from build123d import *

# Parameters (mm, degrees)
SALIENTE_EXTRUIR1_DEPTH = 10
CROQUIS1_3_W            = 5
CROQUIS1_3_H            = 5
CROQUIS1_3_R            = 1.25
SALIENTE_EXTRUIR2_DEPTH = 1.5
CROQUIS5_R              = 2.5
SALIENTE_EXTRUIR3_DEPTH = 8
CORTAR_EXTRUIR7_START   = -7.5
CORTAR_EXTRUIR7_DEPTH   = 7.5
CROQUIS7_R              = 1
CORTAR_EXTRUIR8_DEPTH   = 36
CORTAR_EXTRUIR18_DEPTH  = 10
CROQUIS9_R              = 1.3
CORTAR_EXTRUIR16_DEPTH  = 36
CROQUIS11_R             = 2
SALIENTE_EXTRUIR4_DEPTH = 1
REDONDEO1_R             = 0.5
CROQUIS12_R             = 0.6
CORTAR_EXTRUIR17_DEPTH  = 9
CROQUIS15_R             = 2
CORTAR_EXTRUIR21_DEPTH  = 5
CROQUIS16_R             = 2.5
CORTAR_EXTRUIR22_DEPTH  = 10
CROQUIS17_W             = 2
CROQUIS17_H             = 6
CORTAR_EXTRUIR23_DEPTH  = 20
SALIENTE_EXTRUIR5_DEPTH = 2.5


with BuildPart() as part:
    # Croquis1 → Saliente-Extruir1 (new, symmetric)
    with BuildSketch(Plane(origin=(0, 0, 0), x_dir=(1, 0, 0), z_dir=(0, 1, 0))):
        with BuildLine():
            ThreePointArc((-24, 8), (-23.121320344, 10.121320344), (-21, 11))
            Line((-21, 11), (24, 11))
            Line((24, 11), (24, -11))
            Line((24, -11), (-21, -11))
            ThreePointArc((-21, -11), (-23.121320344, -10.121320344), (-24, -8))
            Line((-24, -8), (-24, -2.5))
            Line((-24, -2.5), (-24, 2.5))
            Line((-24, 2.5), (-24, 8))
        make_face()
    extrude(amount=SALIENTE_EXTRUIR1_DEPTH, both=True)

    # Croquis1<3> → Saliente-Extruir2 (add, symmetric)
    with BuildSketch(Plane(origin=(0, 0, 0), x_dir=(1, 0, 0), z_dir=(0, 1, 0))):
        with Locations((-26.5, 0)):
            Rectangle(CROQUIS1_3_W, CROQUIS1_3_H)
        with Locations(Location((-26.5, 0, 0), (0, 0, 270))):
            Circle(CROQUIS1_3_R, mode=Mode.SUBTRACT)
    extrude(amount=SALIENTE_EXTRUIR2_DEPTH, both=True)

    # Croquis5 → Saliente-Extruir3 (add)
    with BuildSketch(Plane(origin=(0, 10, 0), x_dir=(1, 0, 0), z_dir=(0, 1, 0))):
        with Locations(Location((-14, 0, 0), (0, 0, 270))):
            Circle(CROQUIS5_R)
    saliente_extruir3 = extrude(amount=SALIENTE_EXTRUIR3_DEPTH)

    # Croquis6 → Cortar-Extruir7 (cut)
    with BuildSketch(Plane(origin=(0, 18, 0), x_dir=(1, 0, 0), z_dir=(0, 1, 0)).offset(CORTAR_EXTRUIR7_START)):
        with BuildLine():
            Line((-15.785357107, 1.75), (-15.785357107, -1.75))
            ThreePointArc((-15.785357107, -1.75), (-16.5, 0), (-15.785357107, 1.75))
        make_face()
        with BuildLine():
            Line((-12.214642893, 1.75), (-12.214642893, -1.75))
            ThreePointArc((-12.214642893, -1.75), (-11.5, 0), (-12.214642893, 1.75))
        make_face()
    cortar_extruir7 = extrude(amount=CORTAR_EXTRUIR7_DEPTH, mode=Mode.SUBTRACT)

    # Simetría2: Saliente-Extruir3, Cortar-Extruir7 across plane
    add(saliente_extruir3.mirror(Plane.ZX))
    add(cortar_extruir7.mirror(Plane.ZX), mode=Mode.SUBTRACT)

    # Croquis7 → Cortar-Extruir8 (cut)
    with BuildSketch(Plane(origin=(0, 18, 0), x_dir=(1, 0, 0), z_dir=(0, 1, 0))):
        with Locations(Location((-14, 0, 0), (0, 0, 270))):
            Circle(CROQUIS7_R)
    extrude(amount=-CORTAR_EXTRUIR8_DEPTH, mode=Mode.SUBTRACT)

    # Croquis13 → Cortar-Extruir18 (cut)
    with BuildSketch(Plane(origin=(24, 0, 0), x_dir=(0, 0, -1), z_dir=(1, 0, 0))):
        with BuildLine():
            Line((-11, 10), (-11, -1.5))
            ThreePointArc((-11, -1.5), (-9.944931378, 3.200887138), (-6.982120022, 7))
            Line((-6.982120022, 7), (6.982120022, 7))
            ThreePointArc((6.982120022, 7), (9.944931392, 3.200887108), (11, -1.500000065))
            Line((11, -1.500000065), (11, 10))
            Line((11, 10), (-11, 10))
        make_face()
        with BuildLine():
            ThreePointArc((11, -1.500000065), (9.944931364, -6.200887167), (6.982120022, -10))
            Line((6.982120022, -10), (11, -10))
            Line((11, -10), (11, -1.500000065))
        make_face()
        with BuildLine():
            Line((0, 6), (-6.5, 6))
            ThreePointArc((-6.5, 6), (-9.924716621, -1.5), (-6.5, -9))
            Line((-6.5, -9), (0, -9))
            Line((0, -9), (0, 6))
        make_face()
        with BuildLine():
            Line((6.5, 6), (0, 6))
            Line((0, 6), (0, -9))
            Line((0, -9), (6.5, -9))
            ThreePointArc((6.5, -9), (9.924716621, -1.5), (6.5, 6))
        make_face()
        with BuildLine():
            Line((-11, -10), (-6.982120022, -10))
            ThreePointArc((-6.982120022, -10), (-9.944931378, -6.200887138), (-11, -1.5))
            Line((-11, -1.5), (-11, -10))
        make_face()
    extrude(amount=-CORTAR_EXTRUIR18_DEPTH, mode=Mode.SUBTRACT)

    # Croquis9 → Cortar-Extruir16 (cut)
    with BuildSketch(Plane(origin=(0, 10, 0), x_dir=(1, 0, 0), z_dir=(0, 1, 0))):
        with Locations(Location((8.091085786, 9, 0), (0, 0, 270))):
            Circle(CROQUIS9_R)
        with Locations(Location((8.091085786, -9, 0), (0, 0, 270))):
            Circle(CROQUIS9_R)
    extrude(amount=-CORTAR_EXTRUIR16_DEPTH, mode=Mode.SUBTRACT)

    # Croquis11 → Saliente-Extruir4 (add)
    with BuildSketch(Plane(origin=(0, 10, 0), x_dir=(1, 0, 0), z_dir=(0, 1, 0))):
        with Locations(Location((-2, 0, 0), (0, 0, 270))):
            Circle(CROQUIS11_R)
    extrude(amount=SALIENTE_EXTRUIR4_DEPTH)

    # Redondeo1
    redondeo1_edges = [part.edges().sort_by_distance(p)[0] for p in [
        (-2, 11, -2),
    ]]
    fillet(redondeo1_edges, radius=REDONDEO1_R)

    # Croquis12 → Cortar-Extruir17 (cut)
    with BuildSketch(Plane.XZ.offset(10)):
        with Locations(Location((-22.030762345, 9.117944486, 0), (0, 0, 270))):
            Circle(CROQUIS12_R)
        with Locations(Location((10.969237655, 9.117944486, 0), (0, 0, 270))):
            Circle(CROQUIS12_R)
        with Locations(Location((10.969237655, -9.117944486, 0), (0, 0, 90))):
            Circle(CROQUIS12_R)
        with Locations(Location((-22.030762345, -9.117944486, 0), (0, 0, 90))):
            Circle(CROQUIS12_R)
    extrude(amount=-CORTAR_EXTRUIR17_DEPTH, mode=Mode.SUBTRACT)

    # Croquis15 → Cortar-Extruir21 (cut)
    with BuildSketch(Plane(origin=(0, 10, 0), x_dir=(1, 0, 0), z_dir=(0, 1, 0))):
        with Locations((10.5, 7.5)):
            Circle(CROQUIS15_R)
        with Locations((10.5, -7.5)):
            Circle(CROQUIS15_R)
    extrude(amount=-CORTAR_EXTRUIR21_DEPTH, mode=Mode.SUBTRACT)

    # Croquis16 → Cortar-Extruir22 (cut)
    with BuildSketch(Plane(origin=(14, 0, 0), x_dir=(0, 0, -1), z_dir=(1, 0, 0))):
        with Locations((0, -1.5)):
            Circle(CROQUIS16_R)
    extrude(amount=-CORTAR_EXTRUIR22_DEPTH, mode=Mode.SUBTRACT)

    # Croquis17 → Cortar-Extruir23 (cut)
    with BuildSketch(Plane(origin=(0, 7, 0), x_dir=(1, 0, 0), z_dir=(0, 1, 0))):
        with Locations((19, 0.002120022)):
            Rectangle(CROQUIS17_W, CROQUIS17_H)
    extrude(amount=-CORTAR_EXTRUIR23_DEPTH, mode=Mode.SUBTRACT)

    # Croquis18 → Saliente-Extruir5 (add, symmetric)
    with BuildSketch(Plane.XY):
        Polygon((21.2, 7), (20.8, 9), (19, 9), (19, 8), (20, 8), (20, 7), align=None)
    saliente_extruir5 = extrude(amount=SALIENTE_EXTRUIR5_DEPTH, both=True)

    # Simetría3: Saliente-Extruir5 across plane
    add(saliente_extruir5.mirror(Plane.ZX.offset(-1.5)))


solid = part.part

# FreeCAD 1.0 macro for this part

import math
import FreeCAD as App
import Part
import Sketcher
Q = App.Units.Quantity


def edges_at(feature, points):
    """Names of the edges that pass closest to the given points."""
    edges = feature.Shape.Edges
    near = lambda p: min(range(len(edges)), key=lambda i: edges[i].distToShape(Part.Vertex(*p))[0])
    return sorted({f"Edge{near(p) + 1}" for p in points})


def add_polygon(sketch, points):
    """Adds a closed chain of lines whose ends are joined by coincident constraints."""
    first, n = sketch.GeometryCount, len(points)
    for a, b in zip(points, points[1:] + points[:1]):
        sketch.addGeometry(Part.LineSegment(App.Vector(*a, 0), App.Vector(*b, 0)), False)
    for i in range(n):
        sketch.addConstraint(Sketcher.Constraint("Coincident", first + i, 2, first + (i + 1) % n, 1))

doc = App.newDocument("Part")
params = doc.addObject("Spreadsheet::Sheet", "Params")
for row, (alias, value) in enumerate([
    ("sketch1_radius", "3 mm"),
    ("sketch1_width", "45 mm"),
    ("sketch1_height", "16 mm"),
    ("pad1_length", "20 mm"),
    ("sketch2_diameter", "2.5 mm"),
    ("sketch2_width", "5 mm"),
    ("pad2_length", "3 mm"),
    ("sketch3_diameter", "5 mm"),
    ("pad3_length", "8 mm"),
    ("sketch4_radius", "2.5 mm"),
    ("sketch4_height", "3.5 mm"),
    ("pocket1_length", "7.5 mm"),
    ("sketch5_diameter", "2 mm"),
    ("pocket2_length", "36 mm"),
    ("sketch6_radius", "11 mm"),
    ("sketch6_height", "13 mm"),
    ("sketch6_width", "11.5 mm"),
    ("sketch6_width2", "8.5 mm"),
    ("pocket3_length", "10 mm"),
    ("sketch7_diameter", "2.6 mm"),
    ("pocket4_length", "36 mm"),
    ("sketch8_diameter", "4 mm"),
    ("pad4_length", "1 mm"),
    ("fillet_radius", "0.5 mm"),
    ("sketch9_diameter", "1.2 mm"),
    ("pocket5_length", "9 mm"),
    ("sketch10_diameter", "4 mm"),
    ("pocket6_length", "5 mm"),
    ("sketch11_diameter", "5 mm"),
    ("pocket7_length", "10 mm"),
    ("sketch12_width", "2 mm"),
    ("sketch12_height", "6 mm"),
    ("pocket8_length", "20 mm"),
    ("sketch13_width", "1 mm"),
    ("sketch13_width2", "1.8 mm"),
    ("sketch13_width3", "1.2 mm"),
    ("pad5_length", "5 mm"),
], start=1):
    params.set(f"A{row}", alias)
    params.set(f"B{row}", "=" + value)
    params.setAlias(f"B{row}", alias)

body = doc.addObject("PartDesign::Body", "Body")

# Sketch on XZ plane
sketch1 = doc.addObject("Sketcher::SketchObject", "Sketch")
body.addObject(sketch1)
sketch1.AttachmentSupport = (doc.XZ_Plane, [""])
sketch1.MapMode = "FlatFace"
sketch1.addGeometry(Part.ArcOfCircle(Part.Circle(App.Vector(-21, -8, 0), App.Vector(0, 0, 1), 3), math.radians(180), math.radians(270)), False)
sketch1.addGeometry(Part.LineSegment(App.Vector(-24, -8, 0), App.Vector(-24, 8, 0)), False)
sketch1.addGeometry(Part.ArcOfCircle(Part.Circle(App.Vector(-21, 8, 0), App.Vector(0, 0, 1), 3), math.radians(90), math.radians(180)), False)
sketch1.addGeometry(Part.LineSegment(App.Vector(-21, 11, 0), App.Vector(24, 11, 0)), False)
sketch1.addGeometry(Part.LineSegment(App.Vector(24, 11, 0), App.Vector(24, -11, 0)), False)
sketch1.addGeometry(Part.LineSegment(App.Vector(24, -11, 0), App.Vector(-21, -11, 0)), False)
sketch1.addConstraint(Sketcher.Constraint("Tangent", 0, 1, 1, 1))
sketch1.addConstraint(Sketcher.Constraint("Tangent", 1, 2, 2, 2))
sketch1.addConstraint(Sketcher.Constraint("Tangent", 2, 1, 3, 1))
sketch1.addConstraint(Sketcher.Constraint("Coincident", 3, 2, 4, 1))
sketch1.addConstraint(Sketcher.Constraint("Coincident", 4, 2, 5, 1))
sketch1.addConstraint(Sketcher.Constraint("Tangent", 5, 2, 0, 2))
sketch1.addConstraint(Sketcher.Constraint("Vertical", 1))
sketch1.addConstraint(Sketcher.Constraint("Horizontal", 3))
sketch1.addConstraint(Sketcher.Constraint("Vertical", 4))
sketch1.addConstraint(Sketcher.Constraint("Horizontal", 5))
sketch1.addConstraint(Sketcher.Constraint("Equal", 0, 2))
sketch1.addConstraint(Sketcher.Constraint("Radius", 0, Q("3 mm")))
sketch1.addConstraint(Sketcher.Constraint("DistanceX", 3, 1, 3, 2, Q("45 mm")))
sketch1.addConstraint(Sketcher.Constraint("DistanceY", 1, 1, 1, 2, Q("16 mm")))
sketch1.addConstraint(Sketcher.Constraint("DistanceX", 0, 3, -1, 1, Q("21 mm")))
sketch1.addConstraint(Sketcher.Constraint("DistanceY", 0, 3, -1, 1, Q("8 mm")))
sketch1.setExpression("Constraints[11]", "Params.sketch1_radius")
sketch1.setExpression("Constraints[12]", "Params.sketch1_width")
sketch1.setExpression("Constraints[13]", "Params.sketch1_height")
pad1 = doc.addObject("PartDesign::Pad", "Pad")
body.addObject(pad1)
pad1.Profile = sketch1
pad1.setExpression("Length", "Params.pad1_length")
pad1.Midplane = True

# Sketch on XZ plane
sketch2 = doc.addObject("Sketcher::SketchObject", "Sketch001")
body.addObject(sketch2)
sketch2.AttachmentSupport = (doc.XZ_Plane, [""])
sketch2.MapMode = "FlatFace"
add_polygon(sketch2, [(-29, -2.5), (-29, 2.5), (-24, 2.5), (-24, -2.5)])  # lines 0-3
sketch2.addGeometry(Part.Circle(App.Vector(-26.5, 0, 0), App.Vector(0, 0, 1), 1.25), False)  # 4
sketch2.addConstraint(Sketcher.Constraint("Vertical", 0))
sketch2.addConstraint(Sketcher.Constraint("Horizontal", 1))
sketch2.addConstraint(Sketcher.Constraint("Vertical", 2))
sketch2.addConstraint(Sketcher.Constraint("Horizontal", 3))
sketch2.addConstraint(Sketcher.Constraint("PointOnObject", 4, 3, -1))
sketch2.addConstraint(Sketcher.Constraint("Equal", 3, 0))
sketch2.addConstraint(Sketcher.Constraint("Diameter", 4, Q("2.5 mm")))
sketch2.addConstraint(Sketcher.Constraint("DistanceX", 1, 1, 1, 2, Q("5 mm")))
sketch2.addConstraint(Sketcher.Constraint("DistanceX", 0, 2, -1, 1, Q("29 mm")))
sketch2.addConstraint(Sketcher.Constraint("DistanceX", 4, 3, -1, 1, Q("26.5 mm")))
sketch2.addConstraint(Sketcher.Constraint("DistanceY", -1, 1, 0, 2, Q("2.5 mm")))
sketch2.setExpression("Constraints[10]", "Params.sketch2_diameter")
sketch2.setExpression("Constraints[11]", "Params.sketch2_width")
pad2 = doc.addObject("PartDesign::Pad", "Pad001")
body.addObject(pad2)
pad2.Profile = sketch2
pad2.setExpression("Length", "Params.pad2_length")
pad2.Midplane = True

# Sketch on XZ plane
sketch3 = doc.addObject("Sketcher::SketchObject", "Sketch002")
body.addObject(sketch3)
sketch3.AttachmentSupport = (doc.XZ_Plane, [""])
sketch3.MapMode = "FlatFace"
sketch3.AttachmentOffset = App.Placement(App.Vector(0, 0, -10), App.Rotation())
sketch3.addGeometry(Part.Circle(App.Vector(-14, 0, 0), App.Vector(0, 0, 1), 2.5), False)
sketch3.addConstraint(Sketcher.Constraint("PointOnObject", 0, 3, -1))
sketch3.addConstraint(Sketcher.Constraint("Diameter", 0, Q("5 mm")))
sketch3.addConstraint(Sketcher.Constraint("DistanceX", 0, 3, -1, 1, Q("14 mm")))
sketch3.setExpression("Constraints[1]", "Params.sketch3_diameter")
pad3 = doc.addObject("PartDesign::Pad", "Pad002")
body.addObject(pad3)
pad3.Profile = sketch3
pad3.setExpression("Length", "Params.pad3_length")
pad3.Reversed = True

# Sketch on XZ plane
sketch4 = doc.addObject("Sketcher::SketchObject", "Sketch003")
body.addObject(sketch4)
sketch4.AttachmentSupport = (doc.XZ_Plane, [""])
sketch4.MapMode = "FlatFace"
sketch4.AttachmentOffset = App.Placement(App.Vector(0, 0, -10.5), App.Rotation())
sketch4.addGeometry(Part.LineSegment(App.Vector(-15.785357, 1.75, 0), App.Vector(-15.785357, -1.75, 0)), False)
sketch4.addGeometry(Part.ArcOfCircle(Part.Circle(App.Vector(-14, 0, 0), App.Vector(0, 0, 1), 2.5), math.radians(135.572996), math.radians(224.427004)), False)
sketch4.addGeometry(Part.LineSegment(App.Vector(-12.214643, -1.75, 0), App.Vector(-12.214643, 1.75, 0)), False)
sketch4.addGeometry(Part.ArcOfCircle(Part.Circle(App.Vector(-14, 0, 0), App.Vector(0, 0, 1), 2.5), math.radians(-44.427004), math.radians(44.427004)), False)
sketch4.addConstraint(Sketcher.Constraint("Coincident", 0, 1, 1, 1))
sketch4.addConstraint(Sketcher.Constraint("Coincident", 1, 2, 0, 2))
sketch4.addConstraint(Sketcher.Constraint("Coincident", 2, 1, 3, 1))
sketch4.addConstraint(Sketcher.Constraint("Coincident", 3, 2, 2, 2))
sketch4.addConstraint(Sketcher.Constraint("Vertical", 0))
sketch4.addConstraint(Sketcher.Constraint("Vertical", 2))
sketch4.addConstraint(Sketcher.Constraint("Coincident", 3, 3, 1, 3))
sketch4.addConstraint(Sketcher.Constraint("Equal", 1, 3))
sketch4.addConstraint(Sketcher.Constraint("PointOnObject", 1, 3, -1))
sketch4.addConstraint(Sketcher.Constraint("Horizontal", 1, 2, 2, 1))
sketch4.addConstraint(Sketcher.Constraint("Radius", 1, Q("2.5 mm")))
sketch4.addConstraint(Sketcher.Constraint("DistanceY", 0, 2, 0, 1, Q("3.5 mm")))
sketch4.addConstraint(Sketcher.Constraint("DistanceX", 1, 3, -1, 1, Q("14 mm")))
sketch4.setExpression("Constraints[10]", "Params.sketch4_radius")
sketch4.setExpression("Constraints[11]", "Params.sketch4_height")
pocket1 = doc.addObject("PartDesign::Pocket", "Pocket")
body.addObject(pocket1)
pocket1.Profile = sketch4
pocket1.setExpression("Length", "Params.pocket1_length")
doc.recompute()

mirrored = doc.addObject("PartDesign::Mirrored", "Mirrored")
body.addObject(mirrored)
mirrored.Originals = [pad3, pocket1]
mirrored.MirrorPlane = (doc.XZ_Plane, [""])
body.Tip = mirrored

# Sketch on XZ plane
sketch5 = doc.addObject("Sketcher::SketchObject", "Sketch004")
body.addObject(sketch5)
sketch5.AttachmentSupport = (doc.XZ_Plane, [""])
sketch5.MapMode = "FlatFace"
sketch5.AttachmentOffset = App.Placement(App.Vector(0, 0, -18), App.Rotation())
sketch5.addGeometry(Part.Circle(App.Vector(-14, 0, 0), App.Vector(0, 0, 1), 1), False)
sketch5.addConstraint(Sketcher.Constraint("PointOnObject", 0, 3, -1))
sketch5.addConstraint(Sketcher.Constraint("Diameter", 0, Q("2 mm")))
sketch5.addConstraint(Sketcher.Constraint("DistanceX", 0, 3, -1, 1, Q("14 mm")))
sketch5.setExpression("Constraints[1]", "Params.sketch5_diameter")
pocket2 = doc.addObject("PartDesign::Pocket", "Pocket001")
body.addObject(pocket2)
pocket2.Profile = sketch5
pocket2.setExpression("Length", "Params.pocket2_length")
pocket2.Reversed = True

# Sketch on YZ plane
sketch6 = doc.addObject("Sketcher::SketchObject", "Sketch005")
body.addObject(sketch6)
sketch6.AttachmentSupport = (doc.YZ_Plane, [""])
sketch6.MapMode = "FlatFace"
sketch6.AttachmentOffset = App.Placement(App.Vector(0, 0, 24), App.Rotation())
sketch6.addGeometry(Part.LineSegment(App.Vector(10, 11, 0), App.Vector(-1.5, 11, 0)), False)
sketch6.addGeometry(Part.ArcOfCircle(Part.Circle(App.Vector(-1.5, 0, 0), App.Vector(0, 0, 1), 11), math.radians(39.400569), math.radians(90)), False)
sketch6.addGeometry(Part.LineSegment(App.Vector(7, 6.98212, 0), App.Vector(7, -6.98212, 0)), False)
sketch6.addGeometry(Part.ArcOfCircle(Part.Circle(App.Vector(-1.5, 0, 0), App.Vector(0, 0, 1), 11), math.radians(-90), math.radians(-39.400569)), False)
sketch6.addGeometry(Part.LineSegment(App.Vector(-1.5, -11, 0), App.Vector(10, -11, 0)), False)
sketch6.addGeometry(Part.LineSegment(App.Vector(10, -11, 0), App.Vector(10, 11, 0)), False)
sketch6.addGeometry(Part.ArcOfCircle(Part.Circle(App.Vector(-1.5, 0, 0), App.Vector(0, 0, 1), 11), math.radians(-140.599431), math.radians(-90)), False)
sketch6.addGeometry(Part.LineSegment(App.Vector(-10, -6.98212, 0), App.Vector(-10, -11, 0)), False)
sketch6.addGeometry(Part.LineSegment(App.Vector(-10, -11, 0), App.Vector(-1.5, -11, 0)), False)
sketch6.addGeometry(Part.ArcOfCircle(Part.Circle(App.Vector(-1.5, 0, 0), App.Vector(0, 0, 1), 9.924717), math.radians(40.914383), math.radians(139.085617)), False)
sketch6.addGeometry(Part.LineSegment(App.Vector(-9, 6.5, 0), App.Vector(-9, -6.5, 0)), False)
sketch6.addGeometry(Part.ArcOfCircle(Part.Circle(App.Vector(-1.5, 0, 0), App.Vector(0, 0, 1), 9.924717), math.radians(-139.085617), math.radians(-40.914383)), False)
sketch6.addGeometry(Part.LineSegment(App.Vector(6, -6.5, 0), App.Vector(6, 6.5, 0)), False)
sketch6.addGeometry(Part.LineSegment(App.Vector(-10, 11, 0), App.Vector(-10, 6.98212, 0)), False)
sketch6.addGeometry(Part.ArcOfCircle(Part.Circle(App.Vector(-1.5, 0, 0), App.Vector(0, 0, 1), 11), math.radians(90), math.radians(140.599431)), False)
sketch6.addGeometry(Part.LineSegment(App.Vector(-1.5, 11, 0), App.Vector(-10, 11, 0)), False)
sketch6.addConstraint(Sketcher.Constraint("Tangent", 0, 2, 1, 2))
sketch6.addConstraint(Sketcher.Constraint("Coincident", 1, 1, 2, 1))
sketch6.addConstraint(Sketcher.Constraint("Coincident", 2, 2, 3, 2))
sketch6.addConstraint(Sketcher.Constraint("Tangent", 3, 1, 4, 1))
sketch6.addConstraint(Sketcher.Constraint("Coincident", 4, 2, 5, 1))
sketch6.addConstraint(Sketcher.Constraint("Coincident", 5, 2, 0, 1))
sketch6.addConstraint(Sketcher.Constraint("Coincident", 6, 1, 7, 1))
sketch6.addConstraint(Sketcher.Constraint("Coincident", 7, 2, 8, 1))
sketch6.addConstraint(Sketcher.Constraint("Tangent", 8, 2, 6, 2))
sketch6.addConstraint(Sketcher.Constraint("Coincident", 9, 2, 10, 1))
sketch6.addConstraint(Sketcher.Constraint("Coincident", 10, 2, 11, 1))
sketch6.addConstraint(Sketcher.Constraint("Coincident", 11, 2, 12, 1))
sketch6.addConstraint(Sketcher.Constraint("Coincident", 12, 2, 9, 1))
sketch6.addConstraint(Sketcher.Constraint("Coincident", 13, 2, 14, 2))
sketch6.addConstraint(Sketcher.Constraint("Tangent", 14, 1, 15, 1))
sketch6.addConstraint(Sketcher.Constraint("Coincident", 15, 2, 13, 1))
sketch6.addConstraint(Sketcher.Constraint("Horizontal", 0))
sketch6.addConstraint(Sketcher.Constraint("Vertical", 2))
sketch6.addConstraint(Sketcher.Constraint("Horizontal", 4))
sketch6.addConstraint(Sketcher.Constraint("Vertical", 5))
sketch6.addConstraint(Sketcher.Constraint("Vertical", 7))
sketch6.addConstraint(Sketcher.Constraint("Horizontal", 8))
sketch6.addConstraint(Sketcher.Constraint("Vertical", 10))
sketch6.addConstraint(Sketcher.Constraint("Vertical", 12))
sketch6.addConstraint(Sketcher.Constraint("Vertical", 13))
sketch6.addConstraint(Sketcher.Constraint("Horizontal", 15))
sketch6.addConstraint(Sketcher.Constraint("Coincident", 3, 3, 1, 3))
sketch6.addConstraint(Sketcher.Constraint("Coincident", 6, 3, 1, 3))
sketch6.addConstraint(Sketcher.Constraint("Coincident", 9, 3, 1, 3))
sketch6.addConstraint(Sketcher.Constraint("Coincident", 11, 3, 1, 3))
sketch6.addConstraint(Sketcher.Constraint("Coincident", 14, 3, 1, 3))
sketch6.addConstraint(Sketcher.Constraint("Equal", 1, 3))
sketch6.addConstraint(Sketcher.Constraint("Equal", 3, 6))
sketch6.addConstraint(Sketcher.Constraint("Equal", 9, 11))
sketch6.addConstraint(Sketcher.Constraint("Equal", 6, 14))
sketch6.addConstraint(Sketcher.Constraint("Symmetric", 5, 2, 7, 2, -1, 1))
sketch6.addConstraint(Sketcher.Constraint("Horizontal", 2, 2, 6, 1))
sketch6.addConstraint(Sketcher.Constraint("Horizontal", 10, 2, 11, 2))
sketch6.addConstraint(Sketcher.Constraint("Horizontal", 1, 1, 13, 2))
sketch6.addConstraint(Sketcher.Constraint("Radius", 1, Q("11 mm")))
sketch6.addConstraint(Sketcher.Constraint("DistanceY", 10, 2, 10, 1, Q("13 mm")))
sketch6.addConstraint(Sketcher.Constraint("DistanceX", 0, 2, 0, 1, Q("11.5 mm")))
sketch6.addConstraint(Sketcher.Constraint("DistanceX", 8, 1, 8, 2, Q("8.5 mm")))
sketch6.addConstraint(Sketcher.Constraint("DistanceX", 9, 2, -1, 1, Q("9 mm")))
sketch6.setExpression("Constraints[39]", "Params.sketch6_radius")
sketch6.setExpression("Constraints[40]", "Params.sketch6_height")
sketch6.setExpression("Constraints[41]", "Params.sketch6_width")
sketch6.setExpression("Constraints[42]", "Params.sketch6_width2")
pocket3 = doc.addObject("PartDesign::Pocket", "Pocket002")
body.addObject(pocket3)
pocket3.Profile = sketch6
pocket3.setExpression("Length", "Params.pocket3_length")

# Sketch on XZ plane
sketch7 = doc.addObject("Sketcher::SketchObject", "Sketch006")
body.addObject(sketch7)
sketch7.AttachmentSupport = (doc.XZ_Plane, [""])
sketch7.MapMode = "FlatFace"
sketch7.AttachmentOffset = App.Placement(App.Vector(0, 0, -10), App.Rotation())
sketch7.addGeometry(Part.Circle(App.Vector(8.091086, -9, 0), App.Vector(0, 0, 1), 1.3), False)
sketch7.addGeometry(Part.Circle(App.Vector(8.091086, 9, 0), App.Vector(0, 0, 1), 1.3), False)
sketch7.addConstraint(Sketcher.Constraint("Equal", 0, 1))
sketch7.addConstraint(Sketcher.Constraint("Symmetric", 0, 3, 1, 3, -1))
sketch7.addConstraint(Sketcher.Constraint("Diameter", 0, Q("2.6 mm")))
sketch7.addConstraint(Sketcher.Constraint("DistanceY", 0, 3, -1, 1, Q("9 mm")))
sketch7.addConstraint(Sketcher.Constraint("DistanceX", -1, 1, 0, 3, Q("8.091086 mm")))
sketch7.setExpression("Constraints[2]", "Params.sketch7_diameter")
pocket4 = doc.addObject("PartDesign::Pocket", "Pocket003")
body.addObject(pocket4)
pocket4.Profile = sketch7
pocket4.setExpression("Length", "Params.pocket4_length")
pocket4.Reversed = True

# Sketch on XZ plane
sketch8 = doc.addObject("Sketcher::SketchObject", "Sketch007")
body.addObject(sketch8)
sketch8.AttachmentSupport = (doc.XZ_Plane, [""])
sketch8.MapMode = "FlatFace"
sketch8.AttachmentOffset = App.Placement(App.Vector(0, 0, -10), App.Rotation())
sketch8.addGeometry(Part.Circle(App.Vector(-2, 0, 0), App.Vector(0, 0, 1), 2), False)
sketch8.addConstraint(Sketcher.Constraint("PointOnObject", 0, 3, -1))
sketch8.addConstraint(Sketcher.Constraint("Diameter", 0, Q("4 mm")))
sketch8.addConstraint(Sketcher.Constraint("DistanceX", 0, 3, -1, 1, Q("2 mm")))
sketch8.setExpression("Constraints[1]", "Params.sketch8_diameter")
pad4 = doc.addObject("PartDesign::Pad", "Pad003")
body.addObject(pad4)
pad4.Profile = sketch8
pad4.setExpression("Length", "Params.pad4_length")
pad4.Reversed = True
doc.recompute()

fillet = doc.addObject("PartDesign::Fillet", "Fillet")
body.addObject(fillet)
fillet.Base = (pad4, edges_at(pad4, [(-2, 11, -2)]))
fillet.setExpression("Radius", "Params.fillet_radius")

# Sketch on XZ plane
sketch9 = doc.addObject("Sketcher::SketchObject", "Sketch008")
body.addObject(sketch9)
sketch9.AttachmentSupport = (doc.XZ_Plane, [""])
sketch9.MapMode = "FlatFace"
sketch9.AttachmentOffset = App.Placement(App.Vector(0, 0, 10), App.Rotation())
sketch9.addGeometry(Part.Circle(App.Vector(-22.030762, 9.117944, 0), App.Vector(0, 0, 1), 0.6), False)
sketch9.addGeometry(Part.Circle(App.Vector(10.969238, 9.117944, 0), App.Vector(0, 0, 1), 0.6), False)
sketch9.addGeometry(Part.Circle(App.Vector(10.969238, -9.117944, 0), App.Vector(0, 0, 1), 0.6), False)
sketch9.addGeometry(Part.Circle(App.Vector(-22.030762, -9.117944, 0), App.Vector(0, 0, 1), 0.6), False)
sketch9.addConstraint(Sketcher.Constraint("Equal", 0, 1))
sketch9.addConstraint(Sketcher.Constraint("Equal", 1, 2))
sketch9.addConstraint(Sketcher.Constraint("Equal", 2, 3))
sketch9.addConstraint(Sketcher.Constraint("Symmetric", 1, 3, 2, 3, -1))
sketch9.addConstraint(Sketcher.Constraint("Symmetric", 0, 3, 3, 3, -1))
sketch9.addConstraint(Sketcher.Constraint("Horizontal", 0, 3, 1, 3))
sketch9.addConstraint(Sketcher.Constraint("Diameter", 0, Q("1.2 mm")))
sketch9.addConstraint(Sketcher.Constraint("DistanceX", 0, 3, 1, 3, Q("33 mm")))
sketch9.addConstraint(Sketcher.Constraint("DistanceY", 2, 3, 1, 3, Q("18.235889 mm")))
sketch9.addConstraint(Sketcher.Constraint("DistanceX", 0, 3, -1, 1, Q("22.030762 mm")))
sketch9.setExpression("Constraints[6]", "Params.sketch9_diameter")
pocket5 = doc.addObject("PartDesign::Pocket", "Pocket004")
body.addObject(pocket5)
pocket5.Profile = sketch9
pocket5.setExpression("Length", "Params.pocket5_length")

# Sketch on XZ plane
sketch10 = doc.addObject("Sketcher::SketchObject", "Sketch009")
body.addObject(sketch10)
sketch10.AttachmentSupport = (doc.XZ_Plane, [""])
sketch10.MapMode = "FlatFace"
sketch10.AttachmentOffset = App.Placement(App.Vector(0, 0, -10), App.Rotation())
sketch10.addGeometry(Part.Circle(App.Vector(10.5, -7.5, 0), App.Vector(0, 0, 1), 2), False)
sketch10.addGeometry(Part.Circle(App.Vector(10.5, 7.5, 0), App.Vector(0, 0, 1), 2), False)
sketch10.addConstraint(Sketcher.Constraint("Equal", 0, 1))
sketch10.addConstraint(Sketcher.Constraint("Symmetric", 0, 3, 1, 3, -1))
sketch10.addConstraint(Sketcher.Constraint("Diameter", 0, Q("4 mm")))
sketch10.addConstraint(Sketcher.Constraint("DistanceY", 0, 3, 1, 3, Q("15 mm")))
sketch10.addConstraint(Sketcher.Constraint("DistanceX", -1, 1, 0, 3, Q("10.5 mm")))
sketch10.setExpression("Constraints[2]", "Params.sketch10_diameter")
pocket6 = doc.addObject("PartDesign::Pocket", "Pocket005")
body.addObject(pocket6)
pocket6.Profile = sketch10
pocket6.setExpression("Length", "Params.pocket6_length")
pocket6.Reversed = True

# Sketch on YZ plane
sketch11 = doc.addObject("Sketcher::SketchObject", "Sketch010")
body.addObject(sketch11)
sketch11.AttachmentSupport = (doc.YZ_Plane, [""])
sketch11.MapMode = "FlatFace"
sketch11.AttachmentOffset = App.Placement(App.Vector(0, 0, 14), App.Rotation())
sketch11.addGeometry(Part.Circle(App.Vector(-1.5, 0, 0), App.Vector(0, 0, 1), 2.5), False)
sketch11.addConstraint(Sketcher.Constraint("PointOnObject", 0, 3, -1))
sketch11.addConstraint(Sketcher.Constraint("Diameter", 0, Q("5 mm")))
sketch11.addConstraint(Sketcher.Constraint("DistanceX", 0, 3, -1, 1, Q("1.5 mm")))
sketch11.setExpression("Constraints[1]", "Params.sketch11_diameter")
pocket7 = doc.addObject("PartDesign::Pocket", "Pocket006")
body.addObject(pocket7)
pocket7.Profile = sketch11
pocket7.setExpression("Length", "Params.pocket7_length")

# Sketch on XZ plane
sketch12 = doc.addObject("Sketcher::SketchObject", "Sketch011")
body.addObject(sketch12)
sketch12.AttachmentSupport = (doc.XZ_Plane, [""])
sketch12.MapMode = "FlatFace"
sketch12.AttachmentOffset = App.Placement(App.Vector(0, 0, -7), App.Rotation())
add_polygon(sketch12, [(18, -3.00212), (18, 2.99788), (20, 2.99788), (20, -3.00212)])  # lines 0-3
sketch12.addConstraint(Sketcher.Constraint("Vertical", 0))
sketch12.addConstraint(Sketcher.Constraint("Horizontal", 1))
sketch12.addConstraint(Sketcher.Constraint("Vertical", 2))
sketch12.addConstraint(Sketcher.Constraint("Horizontal", 3))
sketch12.addConstraint(Sketcher.Constraint("DistanceX", 1, 1, 1, 2, Q("2 mm")))
sketch12.addConstraint(Sketcher.Constraint("DistanceY", 0, 1, 0, 2, Q("6 mm")))
sketch12.addConstraint(Sketcher.Constraint("DistanceX", -1, 1, 0, 2, Q("18 mm")))
sketch12.addConstraint(Sketcher.Constraint("DistanceY", -1, 1, 0, 2, Q("2.99788 mm")))
sketch12.setExpression("Constraints[8]", "Params.sketch12_width")
sketch12.setExpression("Constraints[9]", "Params.sketch12_height")
pocket8 = doc.addObject("PartDesign::Pocket", "Pocket007")
body.addObject(pocket8)
pocket8.Profile = sketch12
pocket8.setExpression("Length", "Params.pocket8_length")
pocket8.Reversed = True

# Sketch on XY plane
sketch13 = doc.addObject("Sketcher::SketchObject", "Sketch012")
body.addObject(sketch13)
sketch13.AttachmentSupport = (doc.XY_Plane, [""])
sketch13.MapMode = "FlatFace"
add_polygon(sketch13, [(21.2, 7), (20.8, 9), (19, 9), (19, 8), (20, 8), (20, 7)])  # lines 0-5
sketch13.addConstraint(Sketcher.Constraint("Horizontal", 1))
sketch13.addConstraint(Sketcher.Constraint("Vertical", 2))
sketch13.addConstraint(Sketcher.Constraint("Horizontal", 3))
sketch13.addConstraint(Sketcher.Constraint("Vertical", 4))
sketch13.addConstraint(Sketcher.Constraint("Horizontal", 5))
sketch13.addConstraint(Sketcher.Constraint("Equal", 3, 2))
sketch13.addConstraint(Sketcher.Constraint("Equal", 2, 4))
sketch13.addConstraint(Sketcher.Constraint("DistanceX", 3, 1, 3, 2, Q("1 mm")))
sketch13.addConstraint(Sketcher.Constraint("DistanceX", 1, 2, 1, 1, Q("1.8 mm")))
sketch13.addConstraint(Sketcher.Constraint("DistanceX", 5, 1, 5, 2, Q("1.2 mm")))
sketch13.addConstraint(Sketcher.Constraint("DistanceY", -1, 1, 0, 2, Q("9 mm")))
sketch13.addConstraint(Sketcher.Constraint("DistanceX", -1, 1, 1, 2, Q("19 mm")))
sketch13.setExpression("Constraints[13]", "Params.sketch13_width")
sketch13.setExpression("Constraints[14]", "Params.sketch13_width2")
sketch13.setExpression("Constraints[15]", "Params.sketch13_width3")
pad5 = doc.addObject("PartDesign::Pad", "Pad004")
body.addObject(pad5)
pad5.Profile = sketch13
pad5.setExpression("Length", "Params.pad5_length")
pad5.Midplane = True
doc.recompute()

datumplane = doc.addObject("PartDesign::Plane", "DatumPlane")
body.addObject(datumplane)
datumplane.AttachmentSupport = (doc.XZ_Plane, [""])
datumplane.MapMode = "FlatFace"
datumplane.AttachmentOffset = App.Placement(App.Vector(0, 0, 1.5), App.Rotation())
mirrored2 = doc.addObject("PartDesign::Mirrored", "Mirrored001")
body.addObject(mirrored2)
mirrored2.Originals = [pad5]
mirrored2.MirrorPlane = (datumplane, [""])
body.Tip = mirrored2

doc.recompute()
